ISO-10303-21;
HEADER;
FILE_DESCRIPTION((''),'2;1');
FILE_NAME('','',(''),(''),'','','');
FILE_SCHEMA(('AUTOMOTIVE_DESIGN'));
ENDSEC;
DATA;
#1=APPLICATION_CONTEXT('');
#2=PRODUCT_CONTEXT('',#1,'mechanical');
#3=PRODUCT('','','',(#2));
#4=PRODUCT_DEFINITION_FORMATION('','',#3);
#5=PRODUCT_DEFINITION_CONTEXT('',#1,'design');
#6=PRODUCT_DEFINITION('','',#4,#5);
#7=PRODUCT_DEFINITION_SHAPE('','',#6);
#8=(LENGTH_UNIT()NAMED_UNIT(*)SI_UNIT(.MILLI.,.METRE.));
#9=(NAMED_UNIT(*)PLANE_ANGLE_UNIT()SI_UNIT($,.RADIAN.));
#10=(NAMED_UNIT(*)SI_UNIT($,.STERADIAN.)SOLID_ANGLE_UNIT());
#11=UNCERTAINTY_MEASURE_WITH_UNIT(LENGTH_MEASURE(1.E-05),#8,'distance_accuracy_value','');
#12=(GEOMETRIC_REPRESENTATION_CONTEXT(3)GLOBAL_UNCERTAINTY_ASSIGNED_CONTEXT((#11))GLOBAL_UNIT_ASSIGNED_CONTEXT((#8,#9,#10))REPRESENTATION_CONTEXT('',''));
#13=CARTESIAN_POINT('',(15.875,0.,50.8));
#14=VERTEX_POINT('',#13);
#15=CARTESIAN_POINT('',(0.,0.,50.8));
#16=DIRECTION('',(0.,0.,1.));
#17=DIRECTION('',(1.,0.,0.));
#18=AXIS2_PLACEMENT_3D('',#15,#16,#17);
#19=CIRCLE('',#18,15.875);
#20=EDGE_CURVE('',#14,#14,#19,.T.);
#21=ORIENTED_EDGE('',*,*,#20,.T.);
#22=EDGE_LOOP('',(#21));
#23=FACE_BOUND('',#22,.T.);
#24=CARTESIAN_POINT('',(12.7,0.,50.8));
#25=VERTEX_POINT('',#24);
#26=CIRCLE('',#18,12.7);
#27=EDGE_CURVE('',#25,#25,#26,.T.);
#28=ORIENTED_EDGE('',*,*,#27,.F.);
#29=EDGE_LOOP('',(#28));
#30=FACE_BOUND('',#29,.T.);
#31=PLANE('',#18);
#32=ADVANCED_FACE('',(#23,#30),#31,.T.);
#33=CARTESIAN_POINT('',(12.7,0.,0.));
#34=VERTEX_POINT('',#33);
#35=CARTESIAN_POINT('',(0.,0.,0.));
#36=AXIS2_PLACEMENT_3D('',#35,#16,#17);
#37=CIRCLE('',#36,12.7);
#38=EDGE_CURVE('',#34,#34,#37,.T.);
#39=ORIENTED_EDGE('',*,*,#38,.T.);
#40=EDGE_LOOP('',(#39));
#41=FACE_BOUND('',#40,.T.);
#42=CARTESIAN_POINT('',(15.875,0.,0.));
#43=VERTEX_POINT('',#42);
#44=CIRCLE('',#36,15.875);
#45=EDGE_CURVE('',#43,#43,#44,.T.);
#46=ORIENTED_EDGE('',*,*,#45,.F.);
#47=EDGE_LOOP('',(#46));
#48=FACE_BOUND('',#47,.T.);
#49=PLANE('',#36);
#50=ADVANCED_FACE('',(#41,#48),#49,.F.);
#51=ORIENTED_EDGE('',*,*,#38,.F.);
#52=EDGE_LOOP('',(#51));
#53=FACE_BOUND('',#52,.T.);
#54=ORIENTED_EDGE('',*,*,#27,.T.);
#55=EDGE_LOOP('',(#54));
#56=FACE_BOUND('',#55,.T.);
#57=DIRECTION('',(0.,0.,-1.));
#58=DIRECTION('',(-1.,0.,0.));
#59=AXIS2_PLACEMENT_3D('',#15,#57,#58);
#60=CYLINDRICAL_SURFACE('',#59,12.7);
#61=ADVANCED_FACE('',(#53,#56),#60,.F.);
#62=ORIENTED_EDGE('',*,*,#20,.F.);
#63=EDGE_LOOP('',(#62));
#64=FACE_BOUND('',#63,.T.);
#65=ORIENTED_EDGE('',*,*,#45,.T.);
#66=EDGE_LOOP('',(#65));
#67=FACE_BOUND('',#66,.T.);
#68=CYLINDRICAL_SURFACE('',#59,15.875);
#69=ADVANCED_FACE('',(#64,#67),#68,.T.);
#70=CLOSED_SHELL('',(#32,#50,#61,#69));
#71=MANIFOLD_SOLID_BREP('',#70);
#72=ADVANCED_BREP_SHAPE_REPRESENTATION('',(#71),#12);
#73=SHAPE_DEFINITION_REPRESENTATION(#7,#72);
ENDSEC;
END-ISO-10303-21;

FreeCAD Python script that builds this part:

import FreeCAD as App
import Part
import Sketcher

V = App.Vector
Q = App.Units.Quantity

doc = App.newDocument("Part")
body = doc.addObject("PartDesign::Body", "Body")

# Sketch on XY plane
sketch1 = doc.addObject("Sketcher::SketchObject", "Sketch")
body.addObject(sketch1)
sketch1.AttachmentSupport = (doc.XY_Plane, [""])
sketch1.MapMode = "FlatFace"
sketch1.addGeometry([
    Part.Circle(V(0, 0, 0), V(0, 0, 1), 15.875),
    Part.Circle(V(0, 0, 0), V(0, 0, 1), 12.7),
], False)
sketch1.addConstraint([
    Sketcher.Constraint("Coincident", 0, 3, -1, 1),
    Sketcher.Constraint("Coincident", 1, 3, -1, 1),
    Sketcher.Constraint("Diameter", 1, Q("1 in")),
    Sketcher.Constraint("Diameter", 0, Q("1.25 in")),
])
pad1 = doc.addObject("PartDesign::Pad", "Pad")
body.addObject(pad1)
pad1.Profile = sketch1
pad1.Length = Q("2 in")

doc.recompute()
